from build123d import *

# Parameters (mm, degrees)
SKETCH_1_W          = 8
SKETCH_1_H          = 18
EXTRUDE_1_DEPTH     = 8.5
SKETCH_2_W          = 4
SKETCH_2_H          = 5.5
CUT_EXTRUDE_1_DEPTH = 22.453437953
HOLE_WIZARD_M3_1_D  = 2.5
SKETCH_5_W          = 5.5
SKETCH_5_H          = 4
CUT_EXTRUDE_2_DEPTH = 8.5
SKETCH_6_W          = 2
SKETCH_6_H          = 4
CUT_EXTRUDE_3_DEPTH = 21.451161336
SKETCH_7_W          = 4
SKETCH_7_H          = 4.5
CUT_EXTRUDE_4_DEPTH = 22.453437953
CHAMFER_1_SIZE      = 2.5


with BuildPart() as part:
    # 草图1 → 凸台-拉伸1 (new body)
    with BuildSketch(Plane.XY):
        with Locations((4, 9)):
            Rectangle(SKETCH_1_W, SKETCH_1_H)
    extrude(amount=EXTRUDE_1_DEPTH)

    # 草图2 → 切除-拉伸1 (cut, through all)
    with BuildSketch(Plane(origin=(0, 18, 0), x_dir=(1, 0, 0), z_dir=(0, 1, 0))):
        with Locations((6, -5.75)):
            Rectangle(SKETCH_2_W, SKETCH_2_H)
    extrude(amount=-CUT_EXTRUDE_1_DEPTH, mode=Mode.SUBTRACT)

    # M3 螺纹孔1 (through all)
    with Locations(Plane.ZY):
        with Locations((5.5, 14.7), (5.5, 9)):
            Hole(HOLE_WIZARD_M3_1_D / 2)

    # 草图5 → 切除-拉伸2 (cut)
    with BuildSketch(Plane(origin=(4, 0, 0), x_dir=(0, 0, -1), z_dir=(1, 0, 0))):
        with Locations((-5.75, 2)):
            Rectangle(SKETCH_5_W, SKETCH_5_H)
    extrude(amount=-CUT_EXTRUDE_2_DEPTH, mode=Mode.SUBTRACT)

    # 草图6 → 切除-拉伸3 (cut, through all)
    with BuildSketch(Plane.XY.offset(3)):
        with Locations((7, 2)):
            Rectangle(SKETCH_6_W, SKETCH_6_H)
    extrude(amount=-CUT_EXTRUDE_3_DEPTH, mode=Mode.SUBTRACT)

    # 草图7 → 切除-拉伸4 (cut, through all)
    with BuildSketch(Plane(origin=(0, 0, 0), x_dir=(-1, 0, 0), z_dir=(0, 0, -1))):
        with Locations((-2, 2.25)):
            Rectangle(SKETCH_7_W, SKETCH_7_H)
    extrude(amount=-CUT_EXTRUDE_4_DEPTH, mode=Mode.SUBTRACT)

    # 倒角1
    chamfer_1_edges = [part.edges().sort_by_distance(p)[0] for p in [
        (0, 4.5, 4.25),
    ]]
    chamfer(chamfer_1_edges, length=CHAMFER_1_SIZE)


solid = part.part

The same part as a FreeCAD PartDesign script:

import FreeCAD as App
import Part
import Sketcher

V = App.Vector


def edges_at(feature, points):
    """Names of the edges that pass closest to the given points."""
    edges = feature.Shape.Edges
    near = lambda p: min(range(len(edges)), key=lambda i: edges[i].distToShape(Part.Vertex(*p))[0])
    return sorted({f"Edge{near(p) + 1}" for p in points})

doc = App.newDocument("Part")
body = doc.addObject("PartDesign::Body", "Body")

# Sketch on XY plane
sketch1 = body.newObject("Sketcher::SketchObject", "Sketch")
sketch1.AttachmentSupport = (doc.getObject("XY_Plane"), [""])
sketch1.MapMode = "FlatFace"
sketch1.addGeometry([
    Part.LineSegment(V(0, 18, 0), V(0, 0, 0)),
    Part.LineSegment(V(0, 0, 0), V(8, 0, 0)),
    Part.LineSegment(V(8, 0, 0), V(8, 18, 0)),
    Part.LineSegment(V(8, 18, 0), V(0, 18, 0)),
], False)
sketch1.addConstraint([
    Sketcher.Constraint("Coincident", 0, 2, 1, 1),
    Sketcher.Constraint("Coincident", 1, 2, 2, 1),
    Sketcher.Constraint("Coincident", 2, 2, 3, 1),
    Sketcher.Constraint("Coincident", 3, 2, 0, 1),
    Sketcher.Constraint("Vertical", 0),
    Sketcher.Constraint("Horizontal", 1),
    Sketcher.Constraint("Vertical", 2),
    Sketcher.Constraint("Horizontal", 3),
    Sketcher.Constraint("Coincident", 0, 2, -1, 1),
    Sketcher.Constraint("DistanceX", 1, 1, 1, 2, 8.0),
    Sketcher.Constraint("DistanceY", 0, 2, 0, 1, 18.0),
])
pad1 = body.newObject("PartDesign::Pad", "Pad")
pad1.Profile = sketch1
pad1.Length = 8.5

# Sketch on XZ plane
sketch2 = body.newObject("Sketcher::SketchObject", "Sketch001")
sketch2.AttachmentSupport = (doc.getObject("XZ_Plane"), [""])
sketch2.MapMode = "FlatFace"
sketch2.AttachmentOffset = App.Placement(V(0, 0, -18), App.Rotation())
sketch2.addGeometry([
    Part.LineSegment(V(4, 3, 0), V(4, 8.5, 0)),
    Part.LineSegment(V(4, 8.5, 0), V(8, 8.5, 0)),
    Part.LineSegment(V(8, 8.5, 0), V(8, 3, 0)),
    Part.LineSegment(V(8, 3, 0), V(4, 3, 0)),
], False)
sketch2.addConstraint([
    Sketcher.Constraint("Coincident", 0, 2, 1, 1),
    Sketcher.Constraint("Coincident", 1, 2, 2, 1),
    Sketcher.Constraint("Coincident", 2, 2, 3, 1),
    Sketcher.Constraint("Coincident", 3, 2, 0, 1),
    Sketcher.Constraint("Vertical", 0),
    Sketcher.Constraint("Horizontal", 1),
    Sketcher.Constraint("Vertical", 2),
    Sketcher.Constraint("Horizontal", 3),
    Sketcher.Constraint("DistanceX", 1, 1, 1, 2, 4.0),
    Sketcher.Constraint("DistanceY", 0, 1, 0, 2, 5.5),
    Sketcher.Constraint("DistanceX", -1, 1, 0, 2, 4.0),
    Sketcher.Constraint("DistanceY", -1, 1, 2, 2, 3.0),
])
pocket1 = body.newObject("PartDesign::Pocket", "Pocket")
pocket1.Profile = sketch2
pocket1.Type = "ThroughAll"
pocket1.Reversed = True

# Sketch on YZ plane
sketch3 = body.newObject("Sketcher::SketchObject", "Sketch002")
sketch3.AttachmentSupport = (doc.getObject("YZ_Plane"), [""])
sketch3.MapMode = "FlatFace"
sketch3.addGeometry([
    Part.Circle(V(14.7, 5.5, 0), V(0, 0, 1), 1.2),
    Part.Circle(V(9, 5.5, 0), V(0, 0, 1), 1.2),
], False)
sketch3.addConstraint([
    Sketcher.Constraint("Equal", 0, 1),
    Sketcher.Constraint("Horizontal", 0, 3, 1, 3),
    Sketcher.Constraint("Diameter", 0, 2.5),
    Sketcher.Constraint("DistanceX", -1, 1, 1, 3, 9.0),
    Sketcher.Constraint("DistanceX", -1, 1, 0, 3, 14.7),
    Sketcher.Constraint("DistanceY", -1, 1, 0, 3, 5.5),
])
doc.recompute()
hole = body.newObject("PartDesign::Hole", "Hole")
hole.Profile = sketch3
hole.ThreadType = "None"
hole.Diameter = 2.5
hole.DepthType = "ThroughAll"
hole.Reversed = True

# Sketch on YZ plane
sketch4 = body.newObject("Sketcher::SketchObject", "Sketch003")
sketch4.AttachmentSupport = (doc.getObject("YZ_Plane"), [""])
sketch4.MapMode = "FlatFace"
sketch4.AttachmentOffset = App.Placement(V(0, 0, 4), App.Rotation())
sketch4.addGeometry([
    Part.LineSegment(V(4, 8.5, 0), V(0, 8.5, 0)),
    Part.LineSegment(V(0, 8.5, 0), V(0, 3, 0)),
    Part.LineSegment(V(0, 3, 0), V(4, 3, 0)),
    Part.LineSegment(V(4, 3, 0), V(4, 8.5, 0)),
], False)
sketch4.addConstraint([
    Sketcher.Constraint("Coincident", 0, 2, 1, 1),
    Sketcher.Constraint("Coincident", 1, 2, 2, 1),
    Sketcher.Constraint("Coincident", 2, 2, 3, 1),
    Sketcher.Constraint("Coincident", 3, 2, 0, 1),
    Sketcher.Constraint("Horizontal", 0),
    Sketcher.Constraint("Vertical", 1),
    Sketcher.Constraint("Horizontal", 2),
    Sketcher.Constraint("Vertical", 3),
    Sketcher.Constraint("PointOnObject", 0, 2, -2),
    Sketcher.Constraint("DistanceX", 0, 2, 0, 1, 4.0),
    Sketcher.Constraint("DistanceY", 1, 2, 1, 1, 5.5),
    Sketcher.Constraint("DistanceY", -1, 1, 1, 2, 3.0),
])
pocket2 = body.newObject("PartDesign::Pocket", "Pocket001")
pocket2.Profile = sketch4
pocket2.Length = 8.5

# Sketch on XY plane
sketch5 = body.newObject("Sketcher::SketchObject", "Sketch004")
sketch5.AttachmentSupport = (doc.getObject("XY_Plane"), [""])
sketch5.MapMode = "FlatFace"
sketch5.AttachmentOffset = App.Placement(V(0, 0, 3), App.Rotation())
sketch5.addGeometry([
    Part.LineSegment(V(6, 4, 0), V(6, 0, 0)),
    Part.LineSegment(V(6, 0, 0), V(8, 0, 0)),
    Part.LineSegment(V(8, 0, 0), V(8, 4, 0)),
    Part.LineSegment(V(8, 4, 0), V(6, 4, 0)),
], False)
sketch5.addConstraint([
    Sketcher.Constraint("Coincident", 0, 2, 1, 1),
    Sketcher.Constraint("Coincident", 1, 2, 2, 1),
    Sketcher.Constraint("Coincident", 2, 2, 3, 1),
    Sketcher.Constraint("Coincident", 3, 2, 0, 1),
    Sketcher.Constraint("Vertical", 0),
    Sketcher.Constraint("Horizontal", 1),
    Sketcher.Constraint("Vertical", 2),
    Sketcher.Constraint("Horizontal", 3),
    Sketcher.Constraint("PointOnObject", 0, 2, -1),
    Sketcher.Constraint("DistanceX", 1, 1, 1, 2, 2.0),
    Sketcher.Constraint("DistanceY", 0, 2, 0, 1, 4.0),
    Sketcher.Constraint("DistanceX", -1, 1, 0, 2, 6.0),
])
pocket3 = body.newObject("PartDesign::Pocket", "Pocket002")
pocket3.Profile = sketch5
pocket3.Type = "ThroughAll"

# Sketch on XY plane
sketch6 = body.newObject("Sketcher::SketchObject", "Sketch005")
sketch6.AttachmentSupport = (doc.getObject("XY_Plane"), [""])
sketch6.MapMode = "FlatFace"
sketch6.addGeometry([
    Part.LineSegment(V(4, 4.5, 0), V(4, 0, 0)),
    Part.LineSegment(V(4, 0, 0), V(0, 0, 0)),
    Part.LineSegment(V(0, 0, 0), V(0, 4.5, 0)),
    Part.LineSegment(V(0, 4.5, 0), V(4, 4.5, 0)),
], False)
sketch6.addConstraint([
    Sketcher.Constraint("Coincident", 0, 2, 1, 1),
    Sketcher.Constraint("Coincident", 1, 2, 2, 1),
    Sketcher.Constraint("Coincident", 2, 2, 3, 1),
    Sketcher.Constraint("Coincident", 3, 2, 0, 1),
    Sketcher.Constraint("Vertical", 0),
    Sketcher.Constraint("Horizontal", 1),
    Sketcher.Constraint("Vertical", 2),
    Sketcher.Constraint("Horizontal", 3),
    Sketcher.Constraint("Coincident", 1, 2, -1, 1),
    Sketcher.Constraint("DistanceX", 1, 2, 1, 1, 4.0),
    Sketcher.Constraint("DistanceY", 0, 2, 0, 1, 4.5),
])
pocket4 = body.newObject("PartDesign::Pocket", "Pocket003")
pocket4.Profile = sketch6
pocket4.Type = "ThroughAll"
pocket4.Reversed = True
doc.recompute()

chamfer = body.newObject("PartDesign::Chamfer", "Chamfer")
chamfer.Base = (pocket4, edges_at(pocket4, [(0, 4.5, 4.25)]))
chamfer.Size = 2.5

doc.recompute()
